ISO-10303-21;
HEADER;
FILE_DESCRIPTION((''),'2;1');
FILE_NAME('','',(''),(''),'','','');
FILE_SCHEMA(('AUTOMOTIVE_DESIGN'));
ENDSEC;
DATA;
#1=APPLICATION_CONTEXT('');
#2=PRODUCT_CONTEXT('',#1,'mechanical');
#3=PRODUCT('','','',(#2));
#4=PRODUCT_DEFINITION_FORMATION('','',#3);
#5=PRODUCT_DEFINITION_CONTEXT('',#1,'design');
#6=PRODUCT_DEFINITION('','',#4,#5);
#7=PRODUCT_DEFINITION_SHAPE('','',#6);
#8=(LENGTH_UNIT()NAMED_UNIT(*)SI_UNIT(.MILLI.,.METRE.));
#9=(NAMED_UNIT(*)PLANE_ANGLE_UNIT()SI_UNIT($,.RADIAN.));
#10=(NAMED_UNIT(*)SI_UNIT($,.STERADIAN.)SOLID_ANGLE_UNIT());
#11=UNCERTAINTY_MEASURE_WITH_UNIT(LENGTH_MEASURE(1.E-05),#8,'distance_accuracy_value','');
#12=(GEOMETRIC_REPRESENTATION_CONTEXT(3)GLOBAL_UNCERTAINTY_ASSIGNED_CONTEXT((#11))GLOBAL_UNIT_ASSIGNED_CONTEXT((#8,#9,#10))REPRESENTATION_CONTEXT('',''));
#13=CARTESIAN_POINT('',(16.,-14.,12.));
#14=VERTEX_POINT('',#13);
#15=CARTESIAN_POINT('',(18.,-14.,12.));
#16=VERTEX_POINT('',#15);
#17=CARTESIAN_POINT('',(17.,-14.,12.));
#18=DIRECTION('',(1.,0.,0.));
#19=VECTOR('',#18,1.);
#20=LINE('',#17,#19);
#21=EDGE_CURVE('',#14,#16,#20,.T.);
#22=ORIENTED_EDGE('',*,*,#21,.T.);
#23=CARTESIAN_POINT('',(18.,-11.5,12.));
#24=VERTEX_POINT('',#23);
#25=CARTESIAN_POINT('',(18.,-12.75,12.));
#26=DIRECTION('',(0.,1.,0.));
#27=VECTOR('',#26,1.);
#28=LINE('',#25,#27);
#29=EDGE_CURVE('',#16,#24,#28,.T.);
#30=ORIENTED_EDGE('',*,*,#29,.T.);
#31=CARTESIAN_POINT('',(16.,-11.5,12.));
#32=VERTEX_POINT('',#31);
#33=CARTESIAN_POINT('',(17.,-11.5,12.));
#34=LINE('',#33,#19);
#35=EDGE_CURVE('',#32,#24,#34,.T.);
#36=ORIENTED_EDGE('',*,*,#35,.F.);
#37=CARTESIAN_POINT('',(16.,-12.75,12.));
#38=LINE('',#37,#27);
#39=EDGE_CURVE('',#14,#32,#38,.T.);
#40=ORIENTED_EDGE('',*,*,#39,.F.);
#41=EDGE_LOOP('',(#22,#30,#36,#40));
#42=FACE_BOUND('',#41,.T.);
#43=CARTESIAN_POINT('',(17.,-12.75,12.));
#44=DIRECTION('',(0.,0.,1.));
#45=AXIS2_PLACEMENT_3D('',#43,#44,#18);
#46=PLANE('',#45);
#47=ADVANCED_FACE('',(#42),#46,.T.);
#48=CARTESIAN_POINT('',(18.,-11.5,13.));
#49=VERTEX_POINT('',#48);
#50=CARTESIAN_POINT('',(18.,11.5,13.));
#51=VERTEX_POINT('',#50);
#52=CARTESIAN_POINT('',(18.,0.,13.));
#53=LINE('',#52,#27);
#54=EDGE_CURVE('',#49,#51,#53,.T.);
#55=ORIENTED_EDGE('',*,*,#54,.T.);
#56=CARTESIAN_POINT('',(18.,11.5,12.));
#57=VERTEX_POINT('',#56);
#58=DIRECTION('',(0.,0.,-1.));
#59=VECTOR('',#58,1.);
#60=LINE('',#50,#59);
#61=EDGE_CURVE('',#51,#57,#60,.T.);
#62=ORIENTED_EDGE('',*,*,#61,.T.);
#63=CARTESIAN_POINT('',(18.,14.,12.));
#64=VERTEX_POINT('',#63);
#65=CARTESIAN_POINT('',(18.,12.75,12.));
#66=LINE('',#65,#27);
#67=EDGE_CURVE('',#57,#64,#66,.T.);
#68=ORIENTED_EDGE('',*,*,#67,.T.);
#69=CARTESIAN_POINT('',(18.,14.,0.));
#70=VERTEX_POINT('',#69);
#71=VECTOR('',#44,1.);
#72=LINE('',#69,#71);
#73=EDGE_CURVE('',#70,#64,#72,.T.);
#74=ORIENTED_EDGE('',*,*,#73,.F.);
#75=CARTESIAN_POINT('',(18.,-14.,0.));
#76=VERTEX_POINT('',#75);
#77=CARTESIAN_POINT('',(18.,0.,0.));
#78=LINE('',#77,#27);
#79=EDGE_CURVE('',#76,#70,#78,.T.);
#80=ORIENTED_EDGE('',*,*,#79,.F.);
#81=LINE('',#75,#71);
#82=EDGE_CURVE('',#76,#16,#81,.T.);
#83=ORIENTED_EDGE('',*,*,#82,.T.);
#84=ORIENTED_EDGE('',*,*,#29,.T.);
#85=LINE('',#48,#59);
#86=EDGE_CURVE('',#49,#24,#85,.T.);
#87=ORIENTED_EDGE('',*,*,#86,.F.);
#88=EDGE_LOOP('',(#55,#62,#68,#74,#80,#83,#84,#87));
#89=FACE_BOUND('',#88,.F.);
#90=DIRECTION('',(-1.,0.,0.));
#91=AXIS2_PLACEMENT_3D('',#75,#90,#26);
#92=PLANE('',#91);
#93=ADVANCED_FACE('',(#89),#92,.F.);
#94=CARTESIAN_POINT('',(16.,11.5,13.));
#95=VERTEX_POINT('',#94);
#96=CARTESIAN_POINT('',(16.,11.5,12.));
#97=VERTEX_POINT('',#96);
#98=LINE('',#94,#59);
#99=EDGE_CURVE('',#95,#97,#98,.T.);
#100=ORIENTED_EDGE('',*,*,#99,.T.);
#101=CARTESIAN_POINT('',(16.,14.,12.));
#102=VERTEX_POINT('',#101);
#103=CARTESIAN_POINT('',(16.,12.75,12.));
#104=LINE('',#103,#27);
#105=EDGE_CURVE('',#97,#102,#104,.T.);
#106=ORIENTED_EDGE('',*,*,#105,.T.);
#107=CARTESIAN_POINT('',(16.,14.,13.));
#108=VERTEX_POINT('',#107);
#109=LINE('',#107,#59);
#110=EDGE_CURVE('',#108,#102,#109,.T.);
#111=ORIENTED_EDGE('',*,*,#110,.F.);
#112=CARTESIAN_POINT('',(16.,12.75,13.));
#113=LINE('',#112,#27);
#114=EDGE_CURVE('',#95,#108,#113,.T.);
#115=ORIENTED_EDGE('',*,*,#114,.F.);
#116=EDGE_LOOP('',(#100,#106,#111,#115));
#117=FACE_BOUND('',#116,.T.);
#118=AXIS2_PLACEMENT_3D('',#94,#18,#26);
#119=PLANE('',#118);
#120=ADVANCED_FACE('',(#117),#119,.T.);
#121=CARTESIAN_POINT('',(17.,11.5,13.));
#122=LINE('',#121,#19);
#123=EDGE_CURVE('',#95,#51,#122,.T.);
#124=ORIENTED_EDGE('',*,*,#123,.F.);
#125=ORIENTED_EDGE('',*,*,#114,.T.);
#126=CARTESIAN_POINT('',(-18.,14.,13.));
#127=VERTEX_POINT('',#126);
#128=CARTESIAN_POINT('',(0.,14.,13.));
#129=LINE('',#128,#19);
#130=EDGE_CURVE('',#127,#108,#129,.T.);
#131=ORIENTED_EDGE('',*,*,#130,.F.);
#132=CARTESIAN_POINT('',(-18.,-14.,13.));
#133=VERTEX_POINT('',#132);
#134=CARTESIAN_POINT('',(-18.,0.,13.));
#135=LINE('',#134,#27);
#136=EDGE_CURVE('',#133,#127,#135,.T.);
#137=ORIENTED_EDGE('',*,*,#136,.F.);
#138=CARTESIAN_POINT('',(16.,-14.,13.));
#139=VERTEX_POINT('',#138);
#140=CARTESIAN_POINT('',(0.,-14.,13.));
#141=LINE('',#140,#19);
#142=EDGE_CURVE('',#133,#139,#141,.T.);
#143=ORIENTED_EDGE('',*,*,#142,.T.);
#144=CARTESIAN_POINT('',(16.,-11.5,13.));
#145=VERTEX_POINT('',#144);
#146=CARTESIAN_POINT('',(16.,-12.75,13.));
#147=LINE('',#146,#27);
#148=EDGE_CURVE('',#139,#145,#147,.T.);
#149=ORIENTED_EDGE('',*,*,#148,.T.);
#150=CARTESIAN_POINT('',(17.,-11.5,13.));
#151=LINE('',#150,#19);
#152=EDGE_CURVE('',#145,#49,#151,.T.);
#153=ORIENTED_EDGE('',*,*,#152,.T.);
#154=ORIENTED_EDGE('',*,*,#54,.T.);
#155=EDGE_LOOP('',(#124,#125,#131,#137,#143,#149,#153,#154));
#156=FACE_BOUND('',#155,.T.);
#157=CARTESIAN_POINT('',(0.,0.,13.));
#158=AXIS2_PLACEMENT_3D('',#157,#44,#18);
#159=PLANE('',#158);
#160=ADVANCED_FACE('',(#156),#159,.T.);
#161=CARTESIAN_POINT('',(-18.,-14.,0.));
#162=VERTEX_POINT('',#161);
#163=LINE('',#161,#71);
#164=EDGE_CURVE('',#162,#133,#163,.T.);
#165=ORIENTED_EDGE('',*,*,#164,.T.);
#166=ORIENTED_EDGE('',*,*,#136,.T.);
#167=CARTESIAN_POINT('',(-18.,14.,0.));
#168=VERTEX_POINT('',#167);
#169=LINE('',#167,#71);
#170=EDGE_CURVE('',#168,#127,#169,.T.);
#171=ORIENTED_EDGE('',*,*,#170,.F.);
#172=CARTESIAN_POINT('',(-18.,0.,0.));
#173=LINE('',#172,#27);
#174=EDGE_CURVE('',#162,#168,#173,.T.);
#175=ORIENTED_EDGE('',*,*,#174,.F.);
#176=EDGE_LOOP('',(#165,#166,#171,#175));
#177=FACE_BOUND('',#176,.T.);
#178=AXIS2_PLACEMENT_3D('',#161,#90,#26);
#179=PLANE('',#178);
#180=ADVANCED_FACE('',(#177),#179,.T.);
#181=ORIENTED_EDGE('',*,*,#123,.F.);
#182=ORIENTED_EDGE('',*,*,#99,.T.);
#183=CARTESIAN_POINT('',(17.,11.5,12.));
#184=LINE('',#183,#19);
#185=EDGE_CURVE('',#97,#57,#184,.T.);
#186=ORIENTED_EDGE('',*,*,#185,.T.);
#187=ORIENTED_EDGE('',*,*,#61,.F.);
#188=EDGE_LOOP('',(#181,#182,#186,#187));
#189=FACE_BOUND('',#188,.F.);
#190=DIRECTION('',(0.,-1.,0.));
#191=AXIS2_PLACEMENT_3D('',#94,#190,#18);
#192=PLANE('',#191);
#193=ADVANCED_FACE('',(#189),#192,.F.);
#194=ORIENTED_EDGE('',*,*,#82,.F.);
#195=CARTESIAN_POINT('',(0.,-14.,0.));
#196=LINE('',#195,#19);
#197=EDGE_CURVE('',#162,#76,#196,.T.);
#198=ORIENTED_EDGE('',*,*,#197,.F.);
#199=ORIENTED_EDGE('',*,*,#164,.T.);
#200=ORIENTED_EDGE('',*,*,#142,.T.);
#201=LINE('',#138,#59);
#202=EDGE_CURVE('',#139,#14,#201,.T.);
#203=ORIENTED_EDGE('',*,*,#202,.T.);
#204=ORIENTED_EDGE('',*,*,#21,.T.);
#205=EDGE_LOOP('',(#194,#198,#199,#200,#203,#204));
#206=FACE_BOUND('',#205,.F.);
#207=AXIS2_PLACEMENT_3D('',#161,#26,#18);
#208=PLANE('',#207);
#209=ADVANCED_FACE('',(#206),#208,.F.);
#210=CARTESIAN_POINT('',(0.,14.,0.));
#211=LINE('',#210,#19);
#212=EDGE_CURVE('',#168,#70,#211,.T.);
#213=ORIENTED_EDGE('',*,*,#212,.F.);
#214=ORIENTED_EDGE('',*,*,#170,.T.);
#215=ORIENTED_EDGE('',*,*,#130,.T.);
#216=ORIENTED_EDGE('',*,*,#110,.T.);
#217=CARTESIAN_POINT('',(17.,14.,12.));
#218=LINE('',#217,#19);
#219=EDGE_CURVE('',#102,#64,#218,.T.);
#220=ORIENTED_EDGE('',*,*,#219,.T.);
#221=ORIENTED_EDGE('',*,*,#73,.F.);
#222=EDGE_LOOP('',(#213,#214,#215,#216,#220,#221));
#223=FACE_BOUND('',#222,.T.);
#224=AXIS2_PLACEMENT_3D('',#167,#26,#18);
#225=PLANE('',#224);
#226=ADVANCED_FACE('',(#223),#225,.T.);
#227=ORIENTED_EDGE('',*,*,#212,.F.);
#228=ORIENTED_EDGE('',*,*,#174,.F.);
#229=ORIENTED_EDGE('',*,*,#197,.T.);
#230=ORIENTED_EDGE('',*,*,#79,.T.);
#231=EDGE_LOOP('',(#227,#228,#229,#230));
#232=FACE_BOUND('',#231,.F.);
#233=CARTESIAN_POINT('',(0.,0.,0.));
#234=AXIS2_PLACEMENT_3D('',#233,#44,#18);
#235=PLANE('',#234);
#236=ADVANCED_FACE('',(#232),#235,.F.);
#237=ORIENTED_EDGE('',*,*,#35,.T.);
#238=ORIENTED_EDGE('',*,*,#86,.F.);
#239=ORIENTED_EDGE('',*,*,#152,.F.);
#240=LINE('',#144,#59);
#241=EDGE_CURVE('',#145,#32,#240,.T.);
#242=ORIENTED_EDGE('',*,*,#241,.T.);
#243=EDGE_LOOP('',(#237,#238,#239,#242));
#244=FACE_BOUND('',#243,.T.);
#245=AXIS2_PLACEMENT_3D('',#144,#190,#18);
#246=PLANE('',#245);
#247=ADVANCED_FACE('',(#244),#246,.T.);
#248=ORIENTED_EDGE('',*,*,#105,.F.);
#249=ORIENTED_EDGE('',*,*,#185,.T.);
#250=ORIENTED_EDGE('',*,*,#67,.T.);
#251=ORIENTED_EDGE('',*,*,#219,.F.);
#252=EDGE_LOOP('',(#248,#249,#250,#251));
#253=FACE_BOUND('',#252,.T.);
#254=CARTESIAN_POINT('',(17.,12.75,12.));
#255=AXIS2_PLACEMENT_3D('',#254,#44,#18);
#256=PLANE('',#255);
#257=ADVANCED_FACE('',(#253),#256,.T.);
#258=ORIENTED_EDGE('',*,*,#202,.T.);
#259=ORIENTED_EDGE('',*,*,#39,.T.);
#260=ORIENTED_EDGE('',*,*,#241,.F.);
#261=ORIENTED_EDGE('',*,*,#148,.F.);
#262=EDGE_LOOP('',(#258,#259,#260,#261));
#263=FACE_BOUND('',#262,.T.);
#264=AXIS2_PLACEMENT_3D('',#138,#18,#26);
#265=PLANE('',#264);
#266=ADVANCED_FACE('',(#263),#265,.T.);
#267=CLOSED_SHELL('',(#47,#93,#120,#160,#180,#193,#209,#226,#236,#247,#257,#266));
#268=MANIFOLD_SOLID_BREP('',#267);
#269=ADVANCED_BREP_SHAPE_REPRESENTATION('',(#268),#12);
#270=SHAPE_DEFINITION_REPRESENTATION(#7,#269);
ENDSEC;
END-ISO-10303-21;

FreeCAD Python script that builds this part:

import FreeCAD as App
import Part
import Sketcher

V = App.Vector
Q = App.Units.Quantity


def add_polygon(sketch, points):
    """Adds a closed chain of lines whose ends are joined by coincident constraints."""
    first, n = sketch.GeometryCount, len(points)
    for a, b in zip(points, points[1:] + points[:1]):
        sketch.addGeometry(Part.LineSegment(App.Vector(*a, 0), App.Vector(*b, 0)), False)
    for i in range(n):
        sketch.addConstraint(Sketcher.Constraint("Coincident", first + i, 2, first + (i + 1) % n, 1))

doc = App.newDocument("Part")
body = doc.addObject("PartDesign::Body", "Body")

sketch1 = body.newObject("Sketcher::SketchObject", "Sketch")
sketch1.AttachmentSupport = (doc.getObject("XY_Plane"), [""])
sketch1.MapMode = "FlatFace"
add_polygon(sketch1, [(-18, 14), (-18, -14), (18, -14), (18, 14)])
sketch1.addConstraint(Sketcher.Constraint("Vertical", 0))
sketch1.addConstraint(Sketcher.Constraint("Horizontal", 1))
sketch1.addConstraint(Sketcher.Constraint("Vertical", 2))
sketch1.addConstraint(Sketcher.Constraint("Horizontal", 3))
sketch1.addConstraint(Sketcher.Constraint("Symmetric", 0, 2, 2, 2, -1, 1))
sketch1.addConstraint(Sketcher.Constraint("DistanceX", 1, 1, 1, 2, Q("36 mm")))
sketch1.addConstraint(Sketcher.Constraint("DistanceY", 0, 2, 0, 1, Q("28 mm")))
pad1 = body.newObject("PartDesign::Pad", "Pad")
pad1.Profile = sketch1
pad1.Length = 13

sketch2 = body.newObject("Sketcher::SketchObject", "Sketch001")
sketch2.AttachmentSupport = (doc.getObject("XY_Plane"), [""])
sketch2.MapMode = "FlatFace"
sketch2.AttachmentOffset = App.Placement(V(0, 0, 13), App.Rotation())
add_polygon(sketch2, [(16, -11.5), (16, -14), (18, -14), (18, -11.5)])
add_polygon(sketch2, [(16, 14), (16, 11.5), (18, 11.5), (18, 14)])
sketch2.addConstraint(Sketcher.Constraint("Vertical", 0))
sketch2.addConstraint(Sketcher.Constraint("Horizontal", 1))
sketch2.addConstraint(Sketcher.Constraint("Vertical", 2))
sketch2.addConstraint(Sketcher.Constraint("Horizontal", 3))
sketch2.addConstraint(Sketcher.Constraint("Vertical", 4))
sketch2.addConstraint(Sketcher.Constraint("Horizontal", 5))
sketch2.addConstraint(Sketcher.Constraint("Vertical", 6))
sketch2.addConstraint(Sketcher.Constraint("Horizontal", 7))
sketch2.addConstraint(Sketcher.Constraint("Symmetric", 3, 2, 4, 2, -1))
sketch2.addConstraint(Sketcher.Constraint("Symmetric", 1, 2, 6, 2, -1))
sketch2.addConstraint(Sketcher.Constraint("DistanceX", 1, 1, 1, 2, Q("2 mm")))
sketch2.addConstraint(Sketcher.Constraint("DistanceY", 0, 2, 0, 1, Q("2.5 mm")))
sketch2.addConstraint(Sketcher.Constraint("DistanceX", -1, 1, 0, 2, Q("16 mm")))
sketch2.addConstraint(Sketcher.Constraint("DistanceY", 0, 2, -1, 1, Q("14 mm")))
pocket1 = body.newObject("PartDesign::Pocket", "Pocket")
pocket1.Profile = sketch2
pocket1.Length = 1

doc.recompute()
